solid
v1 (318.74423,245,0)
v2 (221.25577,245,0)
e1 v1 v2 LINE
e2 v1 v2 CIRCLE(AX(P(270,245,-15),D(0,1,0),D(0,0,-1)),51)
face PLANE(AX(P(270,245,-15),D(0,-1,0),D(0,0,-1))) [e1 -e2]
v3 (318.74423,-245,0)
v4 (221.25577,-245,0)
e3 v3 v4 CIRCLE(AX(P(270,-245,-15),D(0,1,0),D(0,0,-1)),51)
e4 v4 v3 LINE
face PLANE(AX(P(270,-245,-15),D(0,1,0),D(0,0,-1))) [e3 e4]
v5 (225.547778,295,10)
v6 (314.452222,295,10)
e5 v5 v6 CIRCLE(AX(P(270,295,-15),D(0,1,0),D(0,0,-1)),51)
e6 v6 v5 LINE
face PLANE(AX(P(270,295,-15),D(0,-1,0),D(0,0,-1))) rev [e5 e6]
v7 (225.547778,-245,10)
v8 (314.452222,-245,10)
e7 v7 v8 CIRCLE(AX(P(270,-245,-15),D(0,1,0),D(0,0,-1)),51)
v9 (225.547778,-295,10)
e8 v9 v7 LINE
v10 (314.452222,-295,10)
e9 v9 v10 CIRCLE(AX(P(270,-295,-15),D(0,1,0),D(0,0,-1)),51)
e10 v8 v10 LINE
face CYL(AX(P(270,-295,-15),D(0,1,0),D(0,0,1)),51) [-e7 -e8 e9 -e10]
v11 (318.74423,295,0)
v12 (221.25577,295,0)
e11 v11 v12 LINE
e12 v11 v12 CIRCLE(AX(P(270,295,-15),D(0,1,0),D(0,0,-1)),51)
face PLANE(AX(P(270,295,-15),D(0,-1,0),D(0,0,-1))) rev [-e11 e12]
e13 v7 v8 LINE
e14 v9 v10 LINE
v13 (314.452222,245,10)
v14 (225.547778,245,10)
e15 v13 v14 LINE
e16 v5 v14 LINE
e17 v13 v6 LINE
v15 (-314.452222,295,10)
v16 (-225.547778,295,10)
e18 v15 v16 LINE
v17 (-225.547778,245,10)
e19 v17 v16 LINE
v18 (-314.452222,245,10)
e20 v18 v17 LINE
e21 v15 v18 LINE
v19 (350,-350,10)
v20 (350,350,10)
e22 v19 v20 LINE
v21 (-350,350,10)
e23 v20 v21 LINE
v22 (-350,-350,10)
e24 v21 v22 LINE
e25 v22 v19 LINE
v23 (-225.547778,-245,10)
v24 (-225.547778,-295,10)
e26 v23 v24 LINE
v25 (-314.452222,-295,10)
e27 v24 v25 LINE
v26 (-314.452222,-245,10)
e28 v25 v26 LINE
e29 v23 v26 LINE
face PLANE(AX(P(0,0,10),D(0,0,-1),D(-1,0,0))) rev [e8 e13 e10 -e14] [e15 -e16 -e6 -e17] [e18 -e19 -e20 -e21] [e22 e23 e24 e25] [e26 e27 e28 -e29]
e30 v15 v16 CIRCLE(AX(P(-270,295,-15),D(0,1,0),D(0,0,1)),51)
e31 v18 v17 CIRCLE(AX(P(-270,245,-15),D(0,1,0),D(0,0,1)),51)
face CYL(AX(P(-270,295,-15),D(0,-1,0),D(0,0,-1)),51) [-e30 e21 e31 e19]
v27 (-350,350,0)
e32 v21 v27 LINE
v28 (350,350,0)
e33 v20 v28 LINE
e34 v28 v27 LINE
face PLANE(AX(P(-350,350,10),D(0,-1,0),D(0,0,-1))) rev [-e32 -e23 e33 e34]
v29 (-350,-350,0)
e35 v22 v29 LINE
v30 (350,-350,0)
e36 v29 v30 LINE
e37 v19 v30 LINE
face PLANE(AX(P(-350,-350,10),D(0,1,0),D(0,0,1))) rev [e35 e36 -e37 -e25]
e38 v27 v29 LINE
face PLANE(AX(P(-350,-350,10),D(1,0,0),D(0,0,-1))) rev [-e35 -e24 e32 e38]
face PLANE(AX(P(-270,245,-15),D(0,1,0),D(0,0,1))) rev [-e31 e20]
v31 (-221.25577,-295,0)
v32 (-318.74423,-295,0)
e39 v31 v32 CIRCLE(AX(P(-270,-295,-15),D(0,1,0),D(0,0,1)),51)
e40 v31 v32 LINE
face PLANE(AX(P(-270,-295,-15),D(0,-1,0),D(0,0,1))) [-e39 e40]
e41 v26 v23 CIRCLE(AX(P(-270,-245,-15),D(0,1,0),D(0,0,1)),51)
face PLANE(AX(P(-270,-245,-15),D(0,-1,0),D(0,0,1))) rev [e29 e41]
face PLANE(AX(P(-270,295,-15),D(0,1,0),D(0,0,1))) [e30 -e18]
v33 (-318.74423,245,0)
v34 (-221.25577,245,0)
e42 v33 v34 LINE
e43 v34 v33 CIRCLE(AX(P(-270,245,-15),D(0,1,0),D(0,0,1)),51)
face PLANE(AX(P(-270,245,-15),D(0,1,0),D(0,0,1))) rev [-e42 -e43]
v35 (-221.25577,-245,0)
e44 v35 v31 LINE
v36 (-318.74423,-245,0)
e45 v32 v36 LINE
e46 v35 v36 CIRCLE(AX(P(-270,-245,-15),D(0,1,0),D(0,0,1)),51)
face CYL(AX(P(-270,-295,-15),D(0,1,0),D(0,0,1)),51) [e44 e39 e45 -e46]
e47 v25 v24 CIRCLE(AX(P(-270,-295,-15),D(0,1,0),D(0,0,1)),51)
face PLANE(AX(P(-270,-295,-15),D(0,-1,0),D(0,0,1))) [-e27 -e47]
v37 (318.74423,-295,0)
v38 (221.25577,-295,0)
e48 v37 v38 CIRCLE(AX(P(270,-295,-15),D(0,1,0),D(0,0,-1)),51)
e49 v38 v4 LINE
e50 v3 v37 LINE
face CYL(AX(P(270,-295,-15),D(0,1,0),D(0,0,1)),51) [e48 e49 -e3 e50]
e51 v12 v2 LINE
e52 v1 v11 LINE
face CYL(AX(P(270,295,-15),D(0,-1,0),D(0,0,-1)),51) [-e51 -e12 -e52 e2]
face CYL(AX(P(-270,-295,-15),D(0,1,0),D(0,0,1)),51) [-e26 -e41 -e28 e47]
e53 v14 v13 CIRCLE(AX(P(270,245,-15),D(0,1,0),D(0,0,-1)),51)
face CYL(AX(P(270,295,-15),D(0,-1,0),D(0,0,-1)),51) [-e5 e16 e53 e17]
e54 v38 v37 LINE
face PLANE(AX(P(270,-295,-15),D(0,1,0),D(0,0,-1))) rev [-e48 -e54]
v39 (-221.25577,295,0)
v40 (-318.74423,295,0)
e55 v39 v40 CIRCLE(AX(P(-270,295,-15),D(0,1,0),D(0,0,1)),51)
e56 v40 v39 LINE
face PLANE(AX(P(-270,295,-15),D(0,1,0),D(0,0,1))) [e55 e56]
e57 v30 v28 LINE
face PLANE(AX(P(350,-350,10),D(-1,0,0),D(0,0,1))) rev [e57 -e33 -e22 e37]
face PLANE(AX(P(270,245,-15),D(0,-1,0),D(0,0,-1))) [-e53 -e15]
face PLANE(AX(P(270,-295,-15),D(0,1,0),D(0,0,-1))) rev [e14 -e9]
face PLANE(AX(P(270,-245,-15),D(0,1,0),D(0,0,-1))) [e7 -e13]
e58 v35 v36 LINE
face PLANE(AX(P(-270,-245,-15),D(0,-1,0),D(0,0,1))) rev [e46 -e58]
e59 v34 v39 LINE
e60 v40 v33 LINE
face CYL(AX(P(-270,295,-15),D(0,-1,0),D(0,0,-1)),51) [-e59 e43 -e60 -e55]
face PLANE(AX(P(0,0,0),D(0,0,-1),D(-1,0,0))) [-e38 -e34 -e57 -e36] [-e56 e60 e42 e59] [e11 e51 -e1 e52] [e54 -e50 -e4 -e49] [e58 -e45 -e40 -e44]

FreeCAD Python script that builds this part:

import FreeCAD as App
import Part
import Sketcher
from FreeCAD import Vector


def add_polygon(sketch, points):
    """Adds a closed chain of lines whose ends are joined by coincident constraints."""
    first, n = sketch.GeometryCount, len(points)
    for a, b in zip(points, points[1:] + points[:1]):
        sketch.addGeometry(Part.LineSegment(App.Vector(*a, 0), App.Vector(*b, 0)), False)
    for i in range(n):
        sketch.addConstraint(Sketcher.Constraint("Coincident", first + i, 2, first + (i + 1) % n, 1))

doc = App.newDocument("Part")
body = doc.addObject("PartDesign::Body", "Body")

sketch1 = doc.addObject("Sketcher::SketchObject", "Sketch")
body.addObject(sketch1)
sketch1.AttachmentSupport = (doc.XY_Plane, [""])
sketch1.MapMode = "FlatFace"
add_polygon(sketch1, [(-350, 350), (-350, -350), (350, -350), (350, 350)])
sketch1.addConstraint(Sketcher.Constraint("Vertical", 0))
sketch1.addConstraint(Sketcher.Constraint("Horizontal", 1))
sketch1.addConstraint(Sketcher.Constraint("Vertical", 2))
sketch1.addConstraint(Sketcher.Constraint("Horizontal", 3))
sketch1.addConstraint(Sketcher.Constraint("Symmetric", 0, 2, 2, 2, -1, 1))
sketch1.addConstraint(Sketcher.Constraint("Equal", 3, 0))
sketch1.addConstraint(Sketcher.Constraint("DistanceX", 1, 1, 1, 2, 700.0))
pad1 = doc.addObject("PartDesign::Pad", "Pad")
body.addObject(pad1)
pad1.Profile = sketch1
pad1.Length = 10

sketch2 = doc.addObject("Sketcher::SketchObject", "Sketch001")
body.addObject(sketch2)
sketch2.AttachmentSupport = (doc.XZ_Plane, [""])
sketch2.MapMode = "FlatFace"
sketch2.AttachmentOffset = App.Placement(Vector(0, 0, -270), App.Rotation())
sketch2.addGeometry(Part.Circle(Vector(-270, -15, 0), Vector(0, 0, 1), 51), False)
sketch2.addGeometry(Part.Circle(Vector(270, -15, 0), Vector(0, 0, 1), 51), False)
sketch2.addConstraint(Sketcher.Constraint("Equal", 0, 1))
sketch2.addConstraint(Sketcher.Constraint("Symmetric", 0, 3, 1, 3, -2))
sketch2.addConstraint(Sketcher.Constraint("Diameter", 0, 102.0))
sketch2.addConstraint(Sketcher.Constraint("DistanceX", 0, 3, -1, 1, 270.0))
sketch2.addConstraint(Sketcher.Constraint("DistanceY", 0, 3, -1, 1, 15.0))
pad2 = doc.addObject("PartDesign::Pad", "Pad001")
body.addObject(pad2)
pad2.Profile = sketch2
pad2.Length = 50
pad2.Midplane = True
doc.recompute()

mirrored = doc.addObject("PartDesign::Mirrored", "Mirrored")
body.addObject(mirrored)
mirrored.Originals = [pad2]
mirrored.MirrorPlane = (doc.XZ_Plane, [""])
body.Tip = mirrored

doc.recompute()
